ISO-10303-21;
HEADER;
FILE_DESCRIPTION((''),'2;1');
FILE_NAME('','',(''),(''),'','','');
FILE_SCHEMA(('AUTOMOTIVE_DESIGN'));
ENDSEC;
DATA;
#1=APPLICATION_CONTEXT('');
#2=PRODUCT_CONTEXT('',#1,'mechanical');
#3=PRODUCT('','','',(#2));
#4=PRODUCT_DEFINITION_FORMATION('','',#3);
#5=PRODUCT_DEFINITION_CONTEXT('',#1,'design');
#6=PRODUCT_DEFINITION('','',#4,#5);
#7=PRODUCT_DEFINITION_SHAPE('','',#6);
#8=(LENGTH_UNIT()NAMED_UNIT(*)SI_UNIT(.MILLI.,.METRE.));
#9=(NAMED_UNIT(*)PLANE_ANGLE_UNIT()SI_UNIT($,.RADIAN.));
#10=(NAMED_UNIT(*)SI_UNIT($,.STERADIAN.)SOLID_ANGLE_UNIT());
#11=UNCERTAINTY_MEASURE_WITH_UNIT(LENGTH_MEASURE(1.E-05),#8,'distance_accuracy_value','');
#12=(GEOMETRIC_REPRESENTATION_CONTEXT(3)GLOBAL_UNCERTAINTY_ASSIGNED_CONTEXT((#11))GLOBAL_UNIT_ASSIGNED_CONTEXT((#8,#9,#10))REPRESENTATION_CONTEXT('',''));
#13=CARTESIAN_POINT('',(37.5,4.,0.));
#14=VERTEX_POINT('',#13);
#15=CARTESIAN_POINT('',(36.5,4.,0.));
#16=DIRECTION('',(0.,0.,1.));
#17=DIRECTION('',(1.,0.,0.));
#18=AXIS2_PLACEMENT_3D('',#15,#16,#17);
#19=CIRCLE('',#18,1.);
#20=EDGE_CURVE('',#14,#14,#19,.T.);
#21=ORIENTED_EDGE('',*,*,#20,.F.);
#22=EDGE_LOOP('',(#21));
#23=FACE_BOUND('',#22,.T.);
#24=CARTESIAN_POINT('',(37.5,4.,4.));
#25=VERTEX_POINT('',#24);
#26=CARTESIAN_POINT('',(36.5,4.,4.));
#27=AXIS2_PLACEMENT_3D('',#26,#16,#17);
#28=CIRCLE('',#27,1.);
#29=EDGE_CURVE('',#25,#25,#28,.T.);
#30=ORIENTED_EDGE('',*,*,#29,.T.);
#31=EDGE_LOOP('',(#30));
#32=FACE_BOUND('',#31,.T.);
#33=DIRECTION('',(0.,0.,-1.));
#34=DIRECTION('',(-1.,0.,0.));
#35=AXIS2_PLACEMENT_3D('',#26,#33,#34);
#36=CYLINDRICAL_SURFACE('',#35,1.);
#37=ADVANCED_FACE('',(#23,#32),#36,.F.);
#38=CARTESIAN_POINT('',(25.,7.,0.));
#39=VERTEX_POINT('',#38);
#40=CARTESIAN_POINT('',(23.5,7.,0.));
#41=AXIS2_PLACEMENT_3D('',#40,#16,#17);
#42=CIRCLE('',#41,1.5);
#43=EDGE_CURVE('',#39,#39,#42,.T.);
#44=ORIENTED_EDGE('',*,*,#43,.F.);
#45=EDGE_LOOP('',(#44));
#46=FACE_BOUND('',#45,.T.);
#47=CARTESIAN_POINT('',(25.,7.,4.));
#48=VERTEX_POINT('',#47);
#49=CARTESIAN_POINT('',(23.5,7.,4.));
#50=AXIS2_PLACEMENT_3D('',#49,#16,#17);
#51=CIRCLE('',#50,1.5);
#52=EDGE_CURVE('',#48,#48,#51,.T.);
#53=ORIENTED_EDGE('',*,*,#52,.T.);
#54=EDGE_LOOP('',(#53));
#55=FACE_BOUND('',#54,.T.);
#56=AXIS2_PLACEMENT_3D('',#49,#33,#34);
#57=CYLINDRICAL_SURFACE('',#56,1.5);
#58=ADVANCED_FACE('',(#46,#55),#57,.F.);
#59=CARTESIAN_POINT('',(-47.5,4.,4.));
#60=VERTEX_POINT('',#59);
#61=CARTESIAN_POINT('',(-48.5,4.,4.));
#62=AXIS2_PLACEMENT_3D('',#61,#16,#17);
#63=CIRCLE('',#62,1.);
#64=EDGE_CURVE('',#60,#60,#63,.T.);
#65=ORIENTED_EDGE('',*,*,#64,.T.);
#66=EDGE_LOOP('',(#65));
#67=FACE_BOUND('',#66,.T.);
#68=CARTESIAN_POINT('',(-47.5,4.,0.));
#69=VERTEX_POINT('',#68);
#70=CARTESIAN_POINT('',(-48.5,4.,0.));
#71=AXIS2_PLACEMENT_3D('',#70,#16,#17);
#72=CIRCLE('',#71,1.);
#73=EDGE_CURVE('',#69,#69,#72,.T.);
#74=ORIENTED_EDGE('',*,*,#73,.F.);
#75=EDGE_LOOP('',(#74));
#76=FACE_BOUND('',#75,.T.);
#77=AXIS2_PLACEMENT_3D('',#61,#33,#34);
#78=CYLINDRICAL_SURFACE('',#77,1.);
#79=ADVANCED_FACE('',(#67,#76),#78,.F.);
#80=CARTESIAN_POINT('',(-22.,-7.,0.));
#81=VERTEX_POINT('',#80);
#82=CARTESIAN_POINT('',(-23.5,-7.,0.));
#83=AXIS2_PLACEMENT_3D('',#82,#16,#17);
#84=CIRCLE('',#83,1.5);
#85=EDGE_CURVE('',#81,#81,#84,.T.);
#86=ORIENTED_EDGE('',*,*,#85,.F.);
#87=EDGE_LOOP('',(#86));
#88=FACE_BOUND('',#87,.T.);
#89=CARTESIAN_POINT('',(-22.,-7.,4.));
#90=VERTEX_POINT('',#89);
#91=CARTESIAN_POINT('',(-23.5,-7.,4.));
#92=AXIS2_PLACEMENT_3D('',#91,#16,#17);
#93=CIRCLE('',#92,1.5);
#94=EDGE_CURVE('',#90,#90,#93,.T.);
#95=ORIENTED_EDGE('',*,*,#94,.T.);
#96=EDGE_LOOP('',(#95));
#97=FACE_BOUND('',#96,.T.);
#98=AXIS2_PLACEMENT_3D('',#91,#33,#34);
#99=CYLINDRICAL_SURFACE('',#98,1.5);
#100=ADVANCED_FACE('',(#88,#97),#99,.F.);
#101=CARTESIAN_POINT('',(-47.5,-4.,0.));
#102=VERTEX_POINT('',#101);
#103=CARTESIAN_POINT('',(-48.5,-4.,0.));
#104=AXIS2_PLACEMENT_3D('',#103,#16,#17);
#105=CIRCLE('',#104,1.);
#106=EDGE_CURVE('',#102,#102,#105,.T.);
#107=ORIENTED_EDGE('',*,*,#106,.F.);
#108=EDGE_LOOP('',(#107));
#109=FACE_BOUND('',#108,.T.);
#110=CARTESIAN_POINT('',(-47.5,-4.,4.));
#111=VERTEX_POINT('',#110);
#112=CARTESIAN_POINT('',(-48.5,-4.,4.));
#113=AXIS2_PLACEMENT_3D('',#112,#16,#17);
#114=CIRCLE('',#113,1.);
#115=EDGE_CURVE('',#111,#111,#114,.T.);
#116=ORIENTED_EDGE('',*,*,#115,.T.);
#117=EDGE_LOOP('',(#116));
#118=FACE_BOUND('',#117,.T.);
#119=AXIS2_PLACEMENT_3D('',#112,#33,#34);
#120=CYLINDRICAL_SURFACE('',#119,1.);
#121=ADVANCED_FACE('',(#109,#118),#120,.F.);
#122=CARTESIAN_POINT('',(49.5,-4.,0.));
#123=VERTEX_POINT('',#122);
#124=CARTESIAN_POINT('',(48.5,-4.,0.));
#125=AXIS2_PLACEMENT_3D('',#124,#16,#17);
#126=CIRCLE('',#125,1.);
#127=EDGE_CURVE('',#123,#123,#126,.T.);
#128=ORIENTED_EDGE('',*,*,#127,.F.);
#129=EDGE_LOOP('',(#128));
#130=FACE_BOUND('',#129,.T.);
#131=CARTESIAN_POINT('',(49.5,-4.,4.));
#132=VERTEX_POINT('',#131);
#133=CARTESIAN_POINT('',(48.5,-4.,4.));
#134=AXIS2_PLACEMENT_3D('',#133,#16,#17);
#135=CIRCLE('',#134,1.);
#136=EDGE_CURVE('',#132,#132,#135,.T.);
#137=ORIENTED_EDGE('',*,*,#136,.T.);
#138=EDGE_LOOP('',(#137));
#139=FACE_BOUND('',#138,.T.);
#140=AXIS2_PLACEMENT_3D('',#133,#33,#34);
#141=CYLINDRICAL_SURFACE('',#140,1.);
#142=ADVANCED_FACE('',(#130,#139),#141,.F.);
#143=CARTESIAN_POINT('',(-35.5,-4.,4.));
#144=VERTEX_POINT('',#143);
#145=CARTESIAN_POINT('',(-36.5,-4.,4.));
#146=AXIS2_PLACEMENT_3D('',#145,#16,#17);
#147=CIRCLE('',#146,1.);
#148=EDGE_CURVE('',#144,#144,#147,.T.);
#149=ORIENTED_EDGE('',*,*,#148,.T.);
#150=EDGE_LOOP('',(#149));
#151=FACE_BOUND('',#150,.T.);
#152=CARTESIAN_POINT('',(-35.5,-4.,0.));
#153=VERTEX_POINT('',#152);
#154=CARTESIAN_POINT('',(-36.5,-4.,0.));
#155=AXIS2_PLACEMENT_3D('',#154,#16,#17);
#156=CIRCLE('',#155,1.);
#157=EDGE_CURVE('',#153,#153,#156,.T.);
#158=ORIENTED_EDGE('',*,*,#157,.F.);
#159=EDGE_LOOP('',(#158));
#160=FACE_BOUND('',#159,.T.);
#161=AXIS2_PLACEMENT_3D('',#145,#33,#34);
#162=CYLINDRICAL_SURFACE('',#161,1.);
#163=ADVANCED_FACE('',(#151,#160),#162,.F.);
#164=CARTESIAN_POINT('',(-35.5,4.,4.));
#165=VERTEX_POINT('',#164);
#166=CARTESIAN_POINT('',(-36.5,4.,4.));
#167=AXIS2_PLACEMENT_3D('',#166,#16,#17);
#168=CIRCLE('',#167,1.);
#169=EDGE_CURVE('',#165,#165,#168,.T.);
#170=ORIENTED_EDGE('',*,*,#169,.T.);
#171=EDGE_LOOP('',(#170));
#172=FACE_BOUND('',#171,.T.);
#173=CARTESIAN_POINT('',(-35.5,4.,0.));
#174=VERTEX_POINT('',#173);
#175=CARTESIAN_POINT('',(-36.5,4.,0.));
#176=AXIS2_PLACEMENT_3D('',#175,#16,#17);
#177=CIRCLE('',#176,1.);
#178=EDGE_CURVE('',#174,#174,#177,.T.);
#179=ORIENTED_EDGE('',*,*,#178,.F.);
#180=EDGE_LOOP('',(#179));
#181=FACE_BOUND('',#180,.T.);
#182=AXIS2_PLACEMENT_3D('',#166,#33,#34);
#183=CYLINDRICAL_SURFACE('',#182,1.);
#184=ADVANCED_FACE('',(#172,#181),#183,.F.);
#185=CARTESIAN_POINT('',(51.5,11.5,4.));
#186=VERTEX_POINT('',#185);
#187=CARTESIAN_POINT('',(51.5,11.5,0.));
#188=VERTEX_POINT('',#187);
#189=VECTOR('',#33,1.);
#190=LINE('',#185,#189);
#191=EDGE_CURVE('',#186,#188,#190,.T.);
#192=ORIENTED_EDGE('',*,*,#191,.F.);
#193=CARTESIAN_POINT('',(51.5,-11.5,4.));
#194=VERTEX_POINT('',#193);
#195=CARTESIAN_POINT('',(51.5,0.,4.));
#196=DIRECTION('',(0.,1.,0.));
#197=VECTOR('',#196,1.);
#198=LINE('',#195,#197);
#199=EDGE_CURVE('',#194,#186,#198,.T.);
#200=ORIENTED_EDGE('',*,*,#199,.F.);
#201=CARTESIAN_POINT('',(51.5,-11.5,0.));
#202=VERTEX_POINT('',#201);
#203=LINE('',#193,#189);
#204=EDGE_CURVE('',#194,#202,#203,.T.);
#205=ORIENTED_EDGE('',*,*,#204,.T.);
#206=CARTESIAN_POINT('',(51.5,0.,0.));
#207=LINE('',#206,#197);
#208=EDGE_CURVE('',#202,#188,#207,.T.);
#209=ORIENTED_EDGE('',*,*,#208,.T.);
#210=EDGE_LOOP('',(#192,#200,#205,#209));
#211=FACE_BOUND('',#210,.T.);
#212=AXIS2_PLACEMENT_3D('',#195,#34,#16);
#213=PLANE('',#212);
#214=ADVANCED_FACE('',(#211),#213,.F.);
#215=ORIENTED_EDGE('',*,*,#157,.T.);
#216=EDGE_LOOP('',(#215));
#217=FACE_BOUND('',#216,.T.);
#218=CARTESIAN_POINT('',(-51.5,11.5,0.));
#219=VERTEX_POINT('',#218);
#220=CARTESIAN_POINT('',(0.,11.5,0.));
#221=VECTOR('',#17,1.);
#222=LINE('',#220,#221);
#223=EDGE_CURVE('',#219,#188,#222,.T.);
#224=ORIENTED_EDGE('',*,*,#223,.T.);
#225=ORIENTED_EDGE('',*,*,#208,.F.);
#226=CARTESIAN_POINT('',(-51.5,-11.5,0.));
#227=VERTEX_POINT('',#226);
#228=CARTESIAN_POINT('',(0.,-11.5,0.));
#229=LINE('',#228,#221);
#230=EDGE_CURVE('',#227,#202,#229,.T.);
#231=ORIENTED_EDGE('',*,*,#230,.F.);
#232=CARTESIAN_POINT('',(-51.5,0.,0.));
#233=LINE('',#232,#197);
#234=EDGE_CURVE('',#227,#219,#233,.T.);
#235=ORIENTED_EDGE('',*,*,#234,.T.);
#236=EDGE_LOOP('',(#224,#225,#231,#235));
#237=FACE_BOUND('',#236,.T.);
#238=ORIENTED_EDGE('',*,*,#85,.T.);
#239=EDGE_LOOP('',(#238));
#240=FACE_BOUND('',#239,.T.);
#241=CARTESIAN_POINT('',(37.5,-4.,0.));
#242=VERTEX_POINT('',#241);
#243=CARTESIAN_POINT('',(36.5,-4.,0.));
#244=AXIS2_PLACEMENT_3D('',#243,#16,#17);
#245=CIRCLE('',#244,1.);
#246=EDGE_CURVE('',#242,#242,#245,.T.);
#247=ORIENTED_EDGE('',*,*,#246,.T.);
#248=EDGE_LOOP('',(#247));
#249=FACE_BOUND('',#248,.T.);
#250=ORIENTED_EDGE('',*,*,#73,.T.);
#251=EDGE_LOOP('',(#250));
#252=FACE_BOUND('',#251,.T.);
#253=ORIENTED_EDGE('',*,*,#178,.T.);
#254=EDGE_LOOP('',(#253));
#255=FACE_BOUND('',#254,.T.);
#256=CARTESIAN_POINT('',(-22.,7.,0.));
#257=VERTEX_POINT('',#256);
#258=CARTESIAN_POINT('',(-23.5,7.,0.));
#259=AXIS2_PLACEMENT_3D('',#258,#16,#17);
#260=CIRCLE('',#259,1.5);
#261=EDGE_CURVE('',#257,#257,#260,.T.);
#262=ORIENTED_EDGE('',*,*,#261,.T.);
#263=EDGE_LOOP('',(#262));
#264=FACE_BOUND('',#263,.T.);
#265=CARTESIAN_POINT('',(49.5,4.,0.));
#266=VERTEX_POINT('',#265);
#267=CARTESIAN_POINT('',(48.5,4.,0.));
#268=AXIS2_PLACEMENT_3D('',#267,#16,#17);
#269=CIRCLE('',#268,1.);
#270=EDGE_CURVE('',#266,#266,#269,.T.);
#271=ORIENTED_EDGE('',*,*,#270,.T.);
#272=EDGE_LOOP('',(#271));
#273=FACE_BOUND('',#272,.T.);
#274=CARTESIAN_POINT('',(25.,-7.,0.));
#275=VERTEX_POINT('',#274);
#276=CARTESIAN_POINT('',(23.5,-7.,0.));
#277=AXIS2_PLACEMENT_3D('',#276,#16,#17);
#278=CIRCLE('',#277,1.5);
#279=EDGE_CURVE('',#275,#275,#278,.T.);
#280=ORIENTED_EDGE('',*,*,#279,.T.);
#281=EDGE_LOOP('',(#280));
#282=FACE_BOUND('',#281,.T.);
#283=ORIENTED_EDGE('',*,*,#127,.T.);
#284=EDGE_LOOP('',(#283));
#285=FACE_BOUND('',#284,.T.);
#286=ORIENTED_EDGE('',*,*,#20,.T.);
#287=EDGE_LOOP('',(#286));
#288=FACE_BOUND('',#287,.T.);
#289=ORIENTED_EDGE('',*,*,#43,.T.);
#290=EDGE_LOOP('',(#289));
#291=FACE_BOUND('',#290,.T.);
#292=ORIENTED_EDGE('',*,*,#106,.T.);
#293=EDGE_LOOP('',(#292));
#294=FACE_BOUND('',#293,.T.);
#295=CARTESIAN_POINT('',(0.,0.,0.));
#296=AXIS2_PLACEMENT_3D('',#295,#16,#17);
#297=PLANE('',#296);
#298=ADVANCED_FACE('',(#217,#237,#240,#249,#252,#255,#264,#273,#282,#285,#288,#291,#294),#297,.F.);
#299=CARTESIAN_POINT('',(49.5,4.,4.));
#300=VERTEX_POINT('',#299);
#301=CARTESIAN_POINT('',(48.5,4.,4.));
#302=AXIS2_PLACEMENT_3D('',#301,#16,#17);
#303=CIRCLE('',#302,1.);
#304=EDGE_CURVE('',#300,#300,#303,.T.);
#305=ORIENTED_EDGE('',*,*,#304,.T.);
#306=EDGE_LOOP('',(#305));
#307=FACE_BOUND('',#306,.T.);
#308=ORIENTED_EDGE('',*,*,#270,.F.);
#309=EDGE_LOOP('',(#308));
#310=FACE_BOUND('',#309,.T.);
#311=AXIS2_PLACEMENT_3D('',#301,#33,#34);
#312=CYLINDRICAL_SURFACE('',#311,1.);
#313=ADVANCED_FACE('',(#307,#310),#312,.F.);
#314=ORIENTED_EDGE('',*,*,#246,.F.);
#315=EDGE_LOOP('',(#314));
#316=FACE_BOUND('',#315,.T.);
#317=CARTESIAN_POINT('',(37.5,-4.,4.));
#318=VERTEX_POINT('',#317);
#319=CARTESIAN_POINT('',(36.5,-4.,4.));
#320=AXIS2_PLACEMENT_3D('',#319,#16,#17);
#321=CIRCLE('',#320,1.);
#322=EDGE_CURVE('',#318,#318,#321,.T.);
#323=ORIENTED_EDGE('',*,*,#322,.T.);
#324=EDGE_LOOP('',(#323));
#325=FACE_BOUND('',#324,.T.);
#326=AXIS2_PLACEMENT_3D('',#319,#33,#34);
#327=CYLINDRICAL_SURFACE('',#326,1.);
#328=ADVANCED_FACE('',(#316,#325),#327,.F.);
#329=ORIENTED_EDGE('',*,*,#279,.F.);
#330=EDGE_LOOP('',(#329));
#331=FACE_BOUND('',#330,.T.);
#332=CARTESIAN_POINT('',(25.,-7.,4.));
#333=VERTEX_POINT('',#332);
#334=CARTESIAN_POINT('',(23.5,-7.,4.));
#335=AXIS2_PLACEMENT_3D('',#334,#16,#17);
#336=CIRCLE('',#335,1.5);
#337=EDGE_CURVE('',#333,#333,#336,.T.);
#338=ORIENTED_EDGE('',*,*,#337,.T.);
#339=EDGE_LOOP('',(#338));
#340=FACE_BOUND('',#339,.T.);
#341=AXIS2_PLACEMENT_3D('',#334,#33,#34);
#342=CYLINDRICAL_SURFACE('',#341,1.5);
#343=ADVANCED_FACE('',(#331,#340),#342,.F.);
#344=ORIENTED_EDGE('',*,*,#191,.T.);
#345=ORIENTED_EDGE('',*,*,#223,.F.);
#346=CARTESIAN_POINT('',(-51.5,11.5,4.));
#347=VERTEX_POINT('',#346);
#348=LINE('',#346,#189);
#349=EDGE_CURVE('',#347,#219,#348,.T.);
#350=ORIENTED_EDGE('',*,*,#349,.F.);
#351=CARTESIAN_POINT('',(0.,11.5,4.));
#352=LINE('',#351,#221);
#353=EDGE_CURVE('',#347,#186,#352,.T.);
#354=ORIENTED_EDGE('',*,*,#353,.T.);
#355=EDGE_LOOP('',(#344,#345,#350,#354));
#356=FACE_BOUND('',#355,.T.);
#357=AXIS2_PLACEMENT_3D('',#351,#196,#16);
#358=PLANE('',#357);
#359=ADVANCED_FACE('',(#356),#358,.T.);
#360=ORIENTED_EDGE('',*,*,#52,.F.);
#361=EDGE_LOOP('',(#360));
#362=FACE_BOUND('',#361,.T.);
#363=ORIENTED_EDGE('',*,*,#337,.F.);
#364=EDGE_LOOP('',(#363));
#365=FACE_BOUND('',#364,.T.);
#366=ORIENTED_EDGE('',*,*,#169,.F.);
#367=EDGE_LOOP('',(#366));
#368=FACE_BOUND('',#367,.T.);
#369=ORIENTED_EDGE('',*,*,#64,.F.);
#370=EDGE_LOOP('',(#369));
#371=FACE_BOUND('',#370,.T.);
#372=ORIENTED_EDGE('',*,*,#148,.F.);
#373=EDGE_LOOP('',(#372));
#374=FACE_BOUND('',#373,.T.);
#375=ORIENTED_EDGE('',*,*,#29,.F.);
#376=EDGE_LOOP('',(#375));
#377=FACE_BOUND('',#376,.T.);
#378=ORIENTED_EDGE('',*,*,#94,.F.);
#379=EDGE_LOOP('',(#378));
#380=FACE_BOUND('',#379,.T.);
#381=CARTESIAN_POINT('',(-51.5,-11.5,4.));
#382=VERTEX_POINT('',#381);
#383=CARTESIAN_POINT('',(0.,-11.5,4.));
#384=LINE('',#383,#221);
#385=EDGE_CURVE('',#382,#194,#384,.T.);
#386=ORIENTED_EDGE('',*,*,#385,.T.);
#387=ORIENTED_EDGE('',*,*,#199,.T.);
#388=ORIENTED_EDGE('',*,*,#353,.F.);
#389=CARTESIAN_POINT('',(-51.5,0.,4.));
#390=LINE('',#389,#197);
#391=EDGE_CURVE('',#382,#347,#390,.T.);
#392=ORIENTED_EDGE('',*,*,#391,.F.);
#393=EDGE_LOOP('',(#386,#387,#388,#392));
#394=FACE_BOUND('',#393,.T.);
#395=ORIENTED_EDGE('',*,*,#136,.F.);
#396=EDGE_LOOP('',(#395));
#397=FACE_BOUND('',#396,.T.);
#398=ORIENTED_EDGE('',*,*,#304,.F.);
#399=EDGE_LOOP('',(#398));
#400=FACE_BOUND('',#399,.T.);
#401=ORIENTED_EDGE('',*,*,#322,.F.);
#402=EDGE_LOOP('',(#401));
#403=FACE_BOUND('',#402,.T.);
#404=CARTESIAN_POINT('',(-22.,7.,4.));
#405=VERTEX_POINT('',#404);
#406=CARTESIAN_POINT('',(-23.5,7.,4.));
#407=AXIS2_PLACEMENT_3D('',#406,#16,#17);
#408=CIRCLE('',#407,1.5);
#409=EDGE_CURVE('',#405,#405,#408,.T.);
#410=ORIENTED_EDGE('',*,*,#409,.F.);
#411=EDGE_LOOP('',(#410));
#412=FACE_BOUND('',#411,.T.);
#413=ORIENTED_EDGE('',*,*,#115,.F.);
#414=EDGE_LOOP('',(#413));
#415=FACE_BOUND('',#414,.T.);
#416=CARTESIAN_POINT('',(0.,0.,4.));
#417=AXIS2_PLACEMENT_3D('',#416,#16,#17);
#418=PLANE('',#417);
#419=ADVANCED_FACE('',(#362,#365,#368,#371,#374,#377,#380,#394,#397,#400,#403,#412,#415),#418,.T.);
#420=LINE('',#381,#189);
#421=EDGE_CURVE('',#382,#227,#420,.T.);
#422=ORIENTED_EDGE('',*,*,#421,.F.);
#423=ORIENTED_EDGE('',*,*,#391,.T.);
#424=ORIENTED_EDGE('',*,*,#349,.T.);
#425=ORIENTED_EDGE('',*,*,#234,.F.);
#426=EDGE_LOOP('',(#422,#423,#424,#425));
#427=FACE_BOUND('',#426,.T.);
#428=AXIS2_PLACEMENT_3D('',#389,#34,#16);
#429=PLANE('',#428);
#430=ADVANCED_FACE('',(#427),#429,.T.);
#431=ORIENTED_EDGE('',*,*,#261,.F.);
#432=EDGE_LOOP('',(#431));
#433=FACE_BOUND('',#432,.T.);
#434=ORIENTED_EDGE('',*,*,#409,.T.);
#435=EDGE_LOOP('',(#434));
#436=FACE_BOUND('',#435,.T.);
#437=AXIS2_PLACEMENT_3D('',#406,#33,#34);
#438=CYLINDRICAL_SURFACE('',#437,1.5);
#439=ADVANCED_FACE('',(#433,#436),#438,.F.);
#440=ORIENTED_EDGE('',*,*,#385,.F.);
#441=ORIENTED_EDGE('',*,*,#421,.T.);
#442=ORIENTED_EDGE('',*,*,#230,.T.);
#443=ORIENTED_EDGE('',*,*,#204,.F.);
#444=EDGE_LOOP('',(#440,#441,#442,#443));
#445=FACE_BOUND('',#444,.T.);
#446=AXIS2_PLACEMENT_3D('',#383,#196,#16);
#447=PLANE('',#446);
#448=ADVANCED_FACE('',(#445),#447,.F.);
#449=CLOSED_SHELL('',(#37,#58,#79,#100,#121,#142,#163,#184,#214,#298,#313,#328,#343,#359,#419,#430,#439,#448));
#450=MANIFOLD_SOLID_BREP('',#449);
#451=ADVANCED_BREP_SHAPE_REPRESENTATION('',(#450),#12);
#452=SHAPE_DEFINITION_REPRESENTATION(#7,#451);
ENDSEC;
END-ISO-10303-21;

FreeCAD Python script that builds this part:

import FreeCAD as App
import Part
import Sketcher

V = App.Vector
Q = App.Units.Quantity

doc = App.newDocument("Part")
body = doc.addObject("PartDesign::Body", "Body")

# Sketch on XY plane
sketch1 = body.newObject("Sketcher::SketchObject", "Sketch")
sketch1.AttachmentSupport = (doc.getObject("XY_Plane"), [""])
sketch1.MapMode = "FlatFace"
sketch1.addGeometry([
    Part.LineSegment(V(-51.5, 11.5, 0), V(-51.5, -11.5, 0)),  # 0
    Part.LineSegment(V(-51.5, -11.5, 0), V(51.5, -11.5, 0)),  # 1
    Part.LineSegment(V(51.5, -11.5, 0), V(51.5, 11.5, 0)),  # 2
    Part.LineSegment(V(51.5, 11.5, 0), V(-51.5, 11.5, 0)),  # 3
    Part.Circle(V(-23.5, -7, 0), V(0, 0, 1), 1.5),  # 4
    Part.Circle(V(-48.5, -4, 0), V(0, 0, 1), 1),  # 5
    Part.Circle(V(-36.5, -4, 0), V(0, 0, 1), 1),  # 6
    Part.Circle(V(23.5, -7, 0), V(0, 0, 1), 1.5),  # 7
    Part.Circle(V(36.5, -4, 0), V(0, 0, 1), 1),  # 8
    Part.Circle(V(48.5, -4, 0), V(0, 0, 1), 1),  # 9
    Part.Circle(V(-48.5, 4, 0), V(0, 0, 1), 1),  # 10
    Part.Circle(V(-36.5, 4, 0), V(0, 0, 1), 1),  # 11
    Part.Circle(V(-23.5, 7, 0), V(0, 0, 1), 1.5),  # 12
    Part.Circle(V(36.5, 4, 0), V(0, 0, 1), 1),  # 13
    Part.Circle(V(48.5, 4, 0), V(0, 0, 1), 1),  # 14
    Part.Circle(V(23.5, 7, 0), V(0, 0, 1), 1.5),  # 15
], False)
sketch1.addConstraint([
    Sketcher.Constraint("Coincident", 0, 2, 1, 1),
    Sketcher.Constraint("Coincident", 1, 2, 2, 1),
    Sketcher.Constraint("Coincident", 2, 2, 3, 1),
    Sketcher.Constraint("Coincident", 3, 2, 0, 1),
    Sketcher.Constraint("Vertical", 0),
    Sketcher.Constraint("Horizontal", 1),
    Sketcher.Constraint("Vertical", 2),
    Sketcher.Constraint("Horizontal", 3),
    Sketcher.Constraint("Equal", 5, 6),
    Sketcher.Constraint("Equal", 4, 7),
    Sketcher.Constraint("Equal", 6, 8),
    Sketcher.Constraint("Equal", 8, 9),
    Sketcher.Constraint("Equal", 9, 10),
    Sketcher.Constraint("Equal", 10, 11),
    Sketcher.Constraint("Equal", 7, 12),
    Sketcher.Constraint("Equal", 11, 13),
    Sketcher.Constraint("Equal", 13, 14),
    Sketcher.Constraint("Equal", 12, 15),
    Sketcher.Constraint("Symmetric", 9, 3, 10, 3, -1, 1),
    Sketcher.Constraint("Symmetric", 8, 3, 11, 3, -1, 1),
    Sketcher.Constraint("Symmetric", 7, 3, 12, 3, -1, 1),
    Sketcher.Constraint("Symmetric", 6, 3, 13, 3, -1, 1),
    Sketcher.Constraint("Symmetric", 5, 3, 14, 3, -1, 1),
    Sketcher.Constraint("Symmetric", 4, 3, 15, 3, -1, 1),
    Sketcher.Constraint("Symmetric", 0, 2, 2, 2, -1, 1),
    Sketcher.Constraint("Symmetric", 4, 3, 7, 3, -2),
    Sketcher.Constraint("Symmetric", 6, 3, 8, 3, -2),
    Sketcher.Constraint("Symmetric", 5, 3, 9, 3, -2),
    Sketcher.Constraint("Horizontal", 5, 3, 6, 3),
    Sketcher.Constraint("Diameter", 4, Q("3 mm")),
    Sketcher.Constraint("Diameter", 5, Q("2 mm")),
    Sketcher.Constraint("DistanceX", 1, 1, 1, 2, Q("103 mm")),
    Sketcher.Constraint("DistanceY", 0, 2, 0, 1, Q("23 mm")),
    Sketcher.Constraint("DistanceY", 4, 3, -1, 1, Q("7 mm")),
    Sketcher.Constraint("DistanceY", 5, 3, -1, 1, Q("4 mm")),
    Sketcher.Constraint("DistanceX", 5, 3, 4, 3, Q("25 mm")),
    Sketcher.Constraint("DistanceX", 5, 3, 6, 3, Q("12 mm")),
    Sketcher.Constraint("DistanceX", 4, 3, 7, 3, Q("47 mm")),
])
pad1 = body.newObject("PartDesign::Pad", "Pad")
pad1.Profile = sketch1
pad1.Length = 4

doc.recompute()
